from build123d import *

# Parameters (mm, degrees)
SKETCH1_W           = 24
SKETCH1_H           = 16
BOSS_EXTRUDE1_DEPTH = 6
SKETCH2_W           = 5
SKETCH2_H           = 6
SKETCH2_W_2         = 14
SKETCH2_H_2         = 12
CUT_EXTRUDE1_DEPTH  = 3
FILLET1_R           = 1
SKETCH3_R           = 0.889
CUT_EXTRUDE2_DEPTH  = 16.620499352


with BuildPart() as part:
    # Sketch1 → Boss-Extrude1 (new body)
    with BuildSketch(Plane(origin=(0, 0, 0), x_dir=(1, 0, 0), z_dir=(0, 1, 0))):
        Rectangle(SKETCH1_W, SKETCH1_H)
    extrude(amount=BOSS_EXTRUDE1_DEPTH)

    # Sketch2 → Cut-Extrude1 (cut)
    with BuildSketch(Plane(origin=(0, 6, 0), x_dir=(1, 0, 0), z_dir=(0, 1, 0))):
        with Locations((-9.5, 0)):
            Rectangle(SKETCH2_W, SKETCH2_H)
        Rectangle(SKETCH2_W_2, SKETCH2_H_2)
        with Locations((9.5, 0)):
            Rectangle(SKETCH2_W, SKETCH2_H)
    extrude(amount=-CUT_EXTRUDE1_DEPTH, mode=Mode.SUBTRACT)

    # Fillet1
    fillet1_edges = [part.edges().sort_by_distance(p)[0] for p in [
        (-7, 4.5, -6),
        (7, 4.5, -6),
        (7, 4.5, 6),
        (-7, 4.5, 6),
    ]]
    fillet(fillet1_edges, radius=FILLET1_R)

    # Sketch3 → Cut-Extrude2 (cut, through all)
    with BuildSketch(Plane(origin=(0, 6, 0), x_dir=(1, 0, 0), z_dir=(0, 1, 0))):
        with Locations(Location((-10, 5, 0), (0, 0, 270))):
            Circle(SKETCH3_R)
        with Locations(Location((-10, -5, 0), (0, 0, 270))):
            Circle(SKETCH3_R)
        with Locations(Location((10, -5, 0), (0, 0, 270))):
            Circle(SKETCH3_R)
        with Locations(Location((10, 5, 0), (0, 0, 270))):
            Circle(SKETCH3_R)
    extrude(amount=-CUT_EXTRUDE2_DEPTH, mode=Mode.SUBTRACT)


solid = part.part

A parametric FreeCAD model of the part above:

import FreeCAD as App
import Part
import Sketcher

V = App.Vector


def edges_at(feature, points):
    """Names of the edges that pass closest to the given points."""
    edges = feature.Shape.Edges
    near = lambda p: min(range(len(edges)), key=lambda i: edges[i].distToShape(Part.Vertex(*p))[0])
    return sorted({f"Edge{near(p) + 1}" for p in points})


def add_polygon(sketch, points):
    """Adds a closed chain of lines whose ends are joined by coincident constraints."""
    first, n = sketch.GeometryCount, len(points)
    for a, b in zip(points, points[1:] + points[:1]):
        sketch.addGeometry(Part.LineSegment(App.Vector(*a, 0), App.Vector(*b, 0)), False)
    for i in range(n):
        sketch.addConstraint(Sketcher.Constraint("Coincident", first + i, 2, first + (i + 1) % n, 1))

doc = App.newDocument("Part")
body = doc.addObject("PartDesign::Body", "Body")

# Sketch on XZ plane
sketch1 = doc.addObject("Sketcher::SketchObject", "Sketch")
body.addObject(sketch1)
sketch1.AttachmentSupport = (doc.XZ_Plane, [""])
sketch1.MapMode = "FlatFace"
add_polygon(sketch1, [(-12, -8), (-12, 8), (12, 8), (12, -8)])  # lines 0-3
sketch1.addConstraint([
    Sketcher.Constraint("Vertical", 0),
    Sketcher.Constraint("Horizontal", 1),
    Sketcher.Constraint("Vertical", 2),
    Sketcher.Constraint("Horizontal", 3),
    Sketcher.Constraint("Symmetric", 0, 2, 2, 2, -1, 1),
    Sketcher.Constraint("DistanceX", 1, 1, 1, 2, 24.0),
    Sketcher.Constraint("DistanceY", 0, 1, 0, 2, 16.0),
])
pad1 = doc.addObject("PartDesign::Pad", "Pad")
body.addObject(pad1)
pad1.Profile = sketch1
pad1.Length = 6
pad1.Reversed = True

# Sketch on XZ plane
sketch2 = doc.addObject("Sketcher::SketchObject", "Sketch001")
body.addObject(sketch2)
sketch2.AttachmentSupport = (doc.XZ_Plane, [""])
sketch2.MapMode = "FlatFace"
sketch2.AttachmentOffset = App.Placement(V(0, 0, -6), App.Rotation())
add_polygon(sketch2, [(-12, -3), (-12, 3), (-7, 3), (-7, 6), (7, 6), (7, 3), (12, 3), (12, -3), (7, -3), (7, -6), (-7, -6), (-7, -3)])  # lines 0-11
sketch2.addConstraint([
    Sketcher.Constraint("Vertical", 0),
    Sketcher.Constraint("Horizontal", 1),
    Sketcher.Constraint("Vertical", 2),
    Sketcher.Constraint("Horizontal", 3),
    Sketcher.Constraint("Vertical", 4),
    Sketcher.Constraint("Horizontal", 5),
    Sketcher.Constraint("Vertical", 6),
    Sketcher.Constraint("Horizontal", 7),
    Sketcher.Constraint("Vertical", 8),
    Sketcher.Constraint("Horizontal", 9),
    Sketcher.Constraint("Vertical", 10),
    Sketcher.Constraint("Horizontal", 11),
    Sketcher.Constraint("Symmetric", 0, 2, 6, 2, -1, 1),
    Sketcher.Constraint("Symmetric", 2, 2, 8, 2, -1, 1),
    Sketcher.Constraint("Symmetric", 4, 2, 10, 2, -1, 1),
    Sketcher.Constraint("Symmetric", 1, 2, 4, 2, -2),
    Sketcher.Constraint("DistanceX", 1, 1, 1, 2, 5.0),
    Sketcher.Constraint("DistanceX", 3, 1, 3, 2, 14.0),
    Sketcher.Constraint("DistanceY", 0, 1, 0, 2, 6.0),
    Sketcher.Constraint("DistanceY", 2, 1, 2, 2, 3.0),
])
pocket1 = doc.addObject("PartDesign::Pocket", "Pocket")
body.addObject(pocket1)
pocket1.Profile = sketch2
pocket1.Length = 3
pocket1.Reversed = True
doc.recompute()

fillet = doc.addObject("PartDesign::Fillet", "Fillet")
body.addObject(fillet)
fillet.Base = (pocket1, edges_at(pocket1, [
    (-7, 4.5, -6),
    (7, 4.5, -6),
    (7, 4.5, 6),
    (-7, 4.5, 6),
]))
fillet.Radius = 1

# Sketch on XZ plane
sketch3 = doc.addObject("Sketcher::SketchObject", "Sketch002")
body.addObject(sketch3)
sketch3.AttachmentSupport = (doc.XZ_Plane, [""])
sketch3.MapMode = "FlatFace"
sketch3.AttachmentOffset = App.Placement(V(0, 0, -6), App.Rotation())
sketch3.addGeometry([
    Part.Circle(V(-10, -5, 0), V(0, 0, 1), 0.9),
    Part.Circle(V(-10, 5, 0), V(0, 0, 1), 0.9),
    Part.Circle(V(10, 5, 0), V(0, 0, 1), 0.9),
    Part.Circle(V(10, -5, 0), V(0, 0, 1), 0.9),
], False)
sketch3.addConstraint([
    Sketcher.Constraint("Equal", 0, 1),
    Sketcher.Constraint("Equal", 1, 2),
    Sketcher.Constraint("Equal", 2, 3),
    Sketcher.Constraint("Symmetric", 0, 3, 2, 3, -1, 1),
    Sketcher.Constraint("Symmetric", 1, 3, 3, 3, -1, 1),
    Sketcher.Constraint("Symmetric", 1, 3, 2, 3, -2),
    Sketcher.Constraint("Diameter", 0, 1.778),
    Sketcher.Constraint("DistanceX", 0, 3, -1, 1, 10.0),
    Sketcher.Constraint("DistanceY", 0, 3, -1, 1, 5.0),
])
pocket2 = doc.addObject("PartDesign::Pocket", "Pocket001")
body.addObject(pocket2)
pocket2.Profile = sketch3
pocket2.Type = "ThroughAll"
pocket2.Reversed = True

doc.recompute()
